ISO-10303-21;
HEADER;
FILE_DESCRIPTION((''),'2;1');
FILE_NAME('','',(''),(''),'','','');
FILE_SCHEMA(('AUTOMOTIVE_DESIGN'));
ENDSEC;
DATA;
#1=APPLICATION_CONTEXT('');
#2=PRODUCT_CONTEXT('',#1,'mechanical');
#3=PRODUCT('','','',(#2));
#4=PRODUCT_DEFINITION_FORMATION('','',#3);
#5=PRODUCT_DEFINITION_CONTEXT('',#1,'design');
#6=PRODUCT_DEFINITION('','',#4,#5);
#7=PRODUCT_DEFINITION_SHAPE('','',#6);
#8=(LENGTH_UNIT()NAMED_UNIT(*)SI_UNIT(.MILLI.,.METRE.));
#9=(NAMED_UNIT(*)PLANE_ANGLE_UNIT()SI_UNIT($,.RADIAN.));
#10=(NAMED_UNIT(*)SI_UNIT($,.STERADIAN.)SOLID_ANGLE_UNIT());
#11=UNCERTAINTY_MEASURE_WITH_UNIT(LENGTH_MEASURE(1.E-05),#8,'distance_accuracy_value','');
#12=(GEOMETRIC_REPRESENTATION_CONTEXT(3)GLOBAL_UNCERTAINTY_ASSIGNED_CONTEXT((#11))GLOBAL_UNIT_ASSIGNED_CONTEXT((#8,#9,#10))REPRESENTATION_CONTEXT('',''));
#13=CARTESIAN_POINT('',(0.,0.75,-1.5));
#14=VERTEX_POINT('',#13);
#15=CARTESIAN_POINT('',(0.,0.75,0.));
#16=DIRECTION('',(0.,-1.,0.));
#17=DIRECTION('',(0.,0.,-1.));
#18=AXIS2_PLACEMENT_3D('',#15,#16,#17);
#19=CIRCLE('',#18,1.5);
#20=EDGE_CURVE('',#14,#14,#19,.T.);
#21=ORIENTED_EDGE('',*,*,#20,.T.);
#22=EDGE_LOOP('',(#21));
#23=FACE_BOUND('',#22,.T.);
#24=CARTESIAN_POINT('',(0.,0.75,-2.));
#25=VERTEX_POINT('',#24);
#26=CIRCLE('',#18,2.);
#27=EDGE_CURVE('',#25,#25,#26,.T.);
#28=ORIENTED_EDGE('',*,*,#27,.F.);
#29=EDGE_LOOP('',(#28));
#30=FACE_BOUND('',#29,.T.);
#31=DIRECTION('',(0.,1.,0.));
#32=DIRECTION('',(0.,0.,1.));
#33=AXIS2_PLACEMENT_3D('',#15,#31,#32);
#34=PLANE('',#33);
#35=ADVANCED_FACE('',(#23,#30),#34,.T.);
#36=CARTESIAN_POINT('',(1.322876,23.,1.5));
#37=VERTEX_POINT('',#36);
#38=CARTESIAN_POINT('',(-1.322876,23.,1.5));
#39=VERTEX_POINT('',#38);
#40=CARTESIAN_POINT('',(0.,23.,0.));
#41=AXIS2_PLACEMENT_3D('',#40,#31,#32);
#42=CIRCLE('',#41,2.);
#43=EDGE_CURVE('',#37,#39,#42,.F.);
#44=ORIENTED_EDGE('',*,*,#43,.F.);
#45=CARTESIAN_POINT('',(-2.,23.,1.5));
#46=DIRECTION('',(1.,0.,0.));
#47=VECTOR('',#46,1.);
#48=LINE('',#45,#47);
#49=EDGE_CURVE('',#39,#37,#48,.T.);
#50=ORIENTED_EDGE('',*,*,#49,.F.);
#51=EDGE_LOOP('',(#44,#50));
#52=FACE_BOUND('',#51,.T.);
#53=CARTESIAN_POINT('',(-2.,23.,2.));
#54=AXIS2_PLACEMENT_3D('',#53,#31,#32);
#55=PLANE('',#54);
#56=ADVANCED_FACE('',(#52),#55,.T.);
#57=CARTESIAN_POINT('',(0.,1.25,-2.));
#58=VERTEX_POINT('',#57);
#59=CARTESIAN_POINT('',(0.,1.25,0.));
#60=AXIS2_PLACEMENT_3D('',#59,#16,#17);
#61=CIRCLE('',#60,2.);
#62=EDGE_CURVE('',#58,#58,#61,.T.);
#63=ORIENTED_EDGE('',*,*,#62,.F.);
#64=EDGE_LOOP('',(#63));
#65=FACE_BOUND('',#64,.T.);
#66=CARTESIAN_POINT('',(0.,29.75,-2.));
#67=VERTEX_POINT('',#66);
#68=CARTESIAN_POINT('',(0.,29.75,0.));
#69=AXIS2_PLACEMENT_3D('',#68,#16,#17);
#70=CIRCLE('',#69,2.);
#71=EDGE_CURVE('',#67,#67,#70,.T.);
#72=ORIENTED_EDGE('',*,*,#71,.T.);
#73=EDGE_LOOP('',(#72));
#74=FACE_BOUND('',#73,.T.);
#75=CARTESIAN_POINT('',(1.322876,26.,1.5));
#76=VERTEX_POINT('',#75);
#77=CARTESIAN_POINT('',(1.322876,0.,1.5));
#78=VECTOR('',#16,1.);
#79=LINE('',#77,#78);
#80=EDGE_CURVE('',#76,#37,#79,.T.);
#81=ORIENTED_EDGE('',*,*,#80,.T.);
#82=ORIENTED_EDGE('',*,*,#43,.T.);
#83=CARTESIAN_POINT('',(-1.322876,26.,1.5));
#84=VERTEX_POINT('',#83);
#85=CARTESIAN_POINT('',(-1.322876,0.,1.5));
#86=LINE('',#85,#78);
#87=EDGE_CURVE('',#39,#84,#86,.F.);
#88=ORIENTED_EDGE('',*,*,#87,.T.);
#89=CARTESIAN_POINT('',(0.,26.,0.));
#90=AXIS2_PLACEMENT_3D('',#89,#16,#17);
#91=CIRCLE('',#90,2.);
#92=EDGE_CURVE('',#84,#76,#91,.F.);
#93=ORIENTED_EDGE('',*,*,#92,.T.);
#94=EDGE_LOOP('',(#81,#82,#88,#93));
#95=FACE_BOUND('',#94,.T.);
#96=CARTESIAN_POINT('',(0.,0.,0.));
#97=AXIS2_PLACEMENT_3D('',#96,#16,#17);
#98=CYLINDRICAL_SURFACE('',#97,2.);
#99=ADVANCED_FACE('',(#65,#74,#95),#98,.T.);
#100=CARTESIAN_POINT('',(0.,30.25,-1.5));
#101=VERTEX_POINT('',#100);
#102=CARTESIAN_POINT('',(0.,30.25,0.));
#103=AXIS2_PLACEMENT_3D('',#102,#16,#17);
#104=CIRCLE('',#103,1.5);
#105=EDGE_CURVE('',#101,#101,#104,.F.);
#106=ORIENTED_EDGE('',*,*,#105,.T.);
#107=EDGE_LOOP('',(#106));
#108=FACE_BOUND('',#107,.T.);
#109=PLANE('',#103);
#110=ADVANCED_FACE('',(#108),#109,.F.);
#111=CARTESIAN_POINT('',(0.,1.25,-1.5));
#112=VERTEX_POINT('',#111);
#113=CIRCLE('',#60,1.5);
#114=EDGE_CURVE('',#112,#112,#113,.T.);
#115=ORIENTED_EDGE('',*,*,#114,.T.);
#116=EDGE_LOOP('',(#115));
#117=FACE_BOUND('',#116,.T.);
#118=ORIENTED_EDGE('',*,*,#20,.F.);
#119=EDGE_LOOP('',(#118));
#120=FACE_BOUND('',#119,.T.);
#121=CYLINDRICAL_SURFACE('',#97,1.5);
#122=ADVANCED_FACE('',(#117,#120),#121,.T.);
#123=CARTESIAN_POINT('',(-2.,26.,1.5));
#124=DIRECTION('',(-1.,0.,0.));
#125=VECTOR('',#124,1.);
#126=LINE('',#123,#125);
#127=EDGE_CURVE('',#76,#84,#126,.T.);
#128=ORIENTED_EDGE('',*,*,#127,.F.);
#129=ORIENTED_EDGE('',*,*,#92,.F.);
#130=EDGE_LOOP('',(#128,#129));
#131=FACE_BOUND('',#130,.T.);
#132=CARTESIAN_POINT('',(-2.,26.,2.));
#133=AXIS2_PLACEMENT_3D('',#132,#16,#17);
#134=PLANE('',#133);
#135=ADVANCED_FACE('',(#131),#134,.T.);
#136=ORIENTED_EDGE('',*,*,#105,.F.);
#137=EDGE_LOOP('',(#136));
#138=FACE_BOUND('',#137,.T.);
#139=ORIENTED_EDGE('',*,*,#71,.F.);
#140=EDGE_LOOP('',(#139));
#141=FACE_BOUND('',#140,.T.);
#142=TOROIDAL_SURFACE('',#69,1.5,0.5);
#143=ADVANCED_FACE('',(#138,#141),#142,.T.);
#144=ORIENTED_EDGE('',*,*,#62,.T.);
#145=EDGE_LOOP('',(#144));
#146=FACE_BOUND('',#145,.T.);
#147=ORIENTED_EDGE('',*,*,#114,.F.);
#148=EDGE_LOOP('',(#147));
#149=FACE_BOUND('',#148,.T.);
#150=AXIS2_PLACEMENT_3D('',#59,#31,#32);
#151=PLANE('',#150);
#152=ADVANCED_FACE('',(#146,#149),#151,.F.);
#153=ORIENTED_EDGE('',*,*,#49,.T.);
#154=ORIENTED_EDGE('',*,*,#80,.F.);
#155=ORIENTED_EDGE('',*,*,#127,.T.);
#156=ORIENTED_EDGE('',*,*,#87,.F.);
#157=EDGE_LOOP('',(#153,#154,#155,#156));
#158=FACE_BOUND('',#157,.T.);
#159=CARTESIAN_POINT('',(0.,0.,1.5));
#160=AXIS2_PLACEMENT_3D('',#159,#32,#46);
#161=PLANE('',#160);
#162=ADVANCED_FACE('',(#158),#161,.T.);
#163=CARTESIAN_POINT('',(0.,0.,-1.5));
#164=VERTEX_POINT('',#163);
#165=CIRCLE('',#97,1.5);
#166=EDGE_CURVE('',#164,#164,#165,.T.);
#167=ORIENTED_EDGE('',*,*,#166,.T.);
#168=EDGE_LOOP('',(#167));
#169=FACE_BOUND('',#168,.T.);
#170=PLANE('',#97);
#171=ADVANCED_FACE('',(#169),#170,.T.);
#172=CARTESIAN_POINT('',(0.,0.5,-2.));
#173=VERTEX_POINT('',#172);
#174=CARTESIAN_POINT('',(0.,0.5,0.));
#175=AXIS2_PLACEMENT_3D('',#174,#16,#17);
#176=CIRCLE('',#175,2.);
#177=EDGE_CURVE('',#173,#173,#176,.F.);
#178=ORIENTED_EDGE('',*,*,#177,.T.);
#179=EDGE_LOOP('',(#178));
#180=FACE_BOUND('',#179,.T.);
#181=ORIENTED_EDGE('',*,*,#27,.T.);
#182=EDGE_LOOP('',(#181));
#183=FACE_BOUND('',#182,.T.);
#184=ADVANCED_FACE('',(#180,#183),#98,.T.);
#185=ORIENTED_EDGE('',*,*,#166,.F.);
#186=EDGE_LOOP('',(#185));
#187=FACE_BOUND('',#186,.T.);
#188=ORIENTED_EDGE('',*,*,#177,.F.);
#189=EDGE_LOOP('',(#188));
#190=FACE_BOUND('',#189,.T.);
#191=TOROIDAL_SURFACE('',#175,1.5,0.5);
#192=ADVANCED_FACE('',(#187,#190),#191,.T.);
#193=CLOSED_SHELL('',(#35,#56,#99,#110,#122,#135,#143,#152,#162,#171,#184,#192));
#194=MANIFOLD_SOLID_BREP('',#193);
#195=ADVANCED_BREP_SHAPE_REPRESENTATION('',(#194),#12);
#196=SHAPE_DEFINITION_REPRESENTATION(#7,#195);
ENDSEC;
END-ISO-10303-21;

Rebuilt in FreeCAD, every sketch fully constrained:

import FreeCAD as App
import Part
import Sketcher

V = App.Vector


def edges_at(feature, points):
    """Names of the edges that pass closest to the given points."""
    edges = feature.Shape.Edges
    near = lambda p: min(range(len(edges)), key=lambda i: edges[i].distToShape(Part.Vertex(*p))[0])
    return sorted({f"Edge{near(p) + 1}" for p in points})

doc = App.newDocument("Part")
body = doc.addObject("PartDesign::Body", "Body")

# Sketch on XY plane
sketch1 = body.newObject("Sketcher::SketchObject", "Sketch")
sketch1.AttachmentSupport = (doc.getObject("XY_Plane"), [""])
sketch1.MapMode = "FlatFace"
sketch1.addGeometry(Part.LineSegment(V(-2, 0, 0), V(0, 0, 0)), False)
sketch1.addGeometry(Part.LineSegment(V(0, 0, 0), V(0, 30.2, 0)), False)
sketch1.addGeometry(Part.LineSegment(V(0, 30.2, 0), V(-2, 30.2, 0)), False)
sketch1.addGeometry(Part.LineSegment(V(-2, 30.2, 0), V(-2, 1.2, 0)), False)
sketch1.addGeometry(Part.LineSegment(V(-2, 1.2, 0), V(-1.5, 1.2, 0)), False)
sketch1.addGeometry(Part.LineSegment(V(-1.5, 1.2, 0), V(-1.5, 0.8, 0)), False)
sketch1.addGeometry(Part.LineSegment(V(-1.5, 0.8, 0), V(-2, 0.8, 0)), False)
sketch1.addGeometry(Part.LineSegment(V(-2, 0.8, 0), V(-2, 0, 0)), False)
sketch1.addConstraint(Sketcher.Constraint("Coincident", 0, 2, 1, 1))
sketch1.addConstraint(Sketcher.Constraint("Coincident", 1, 2, 2, 1))
sketch1.addConstraint(Sketcher.Constraint("Coincident", 2, 2, 3, 1))
sketch1.addConstraint(Sketcher.Constraint("Coincident", 3, 2, 4, 1))
sketch1.addConstraint(Sketcher.Constraint("Coincident", 4, 2, 5, 1))
sketch1.addConstraint(Sketcher.Constraint("Coincident", 5, 2, 6, 1))
sketch1.addConstraint(Sketcher.Constraint("Coincident", 6, 2, 7, 1))
sketch1.addConstraint(Sketcher.Constraint("Coincident", 7, 2, 0, 1))
sketch1.addConstraint(Sketcher.Constraint("Horizontal", 0))
sketch1.addConstraint(Sketcher.Constraint("Vertical", 1))
sketch1.addConstraint(Sketcher.Constraint("Horizontal", 2))
sketch1.addConstraint(Sketcher.Constraint("Vertical", 3))
sketch1.addConstraint(Sketcher.Constraint("Horizontal", 4))
sketch1.addConstraint(Sketcher.Constraint("Vertical", 5))
sketch1.addConstraint(Sketcher.Constraint("Horizontal", 6))
sketch1.addConstraint(Sketcher.Constraint("Vertical", 7))
sketch1.addConstraint(Sketcher.Constraint("Coincident", 0, 2, -1, 1))
sketch1.addConstraint(Sketcher.Constraint("Vertical", 3, 2, 6, 2))
sketch1.addConstraint(Sketcher.Constraint("Equal", 6, 5))
sketch1.addConstraint(Sketcher.Constraint("DistanceX", 0, 1, 0, 2, 2.0))
sketch1.addConstraint(Sketcher.Constraint("DistanceY", 3, 2, 3, 1, 29.0))
sketch1.addConstraint(Sketcher.Constraint("DistanceX", 4, 1, 4, 2, 0.5))
sketch1.addConstraint(Sketcher.Constraint("DistanceY", 1, 1, 1, 2, 30.25))
revolution = body.newObject("PartDesign::Revolution", "Revolution")
revolution.Profile = sketch1
revolution.ReferenceAxis = (sketch1, ["V_Axis"])
revolution.Angle = 360
doc.recompute()

fillet = body.newObject("PartDesign::Fillet", "Fillet")
fillet.Base = (revolution, edges_at(revolution, [(0, 30.25, 2), (0, 0, 2)]))
fillet.Radius = 0.5

# Sketch on XY plane
sketch2 = body.newObject("Sketcher::SketchObject", "Sketch001")
sketch2.AttachmentSupport = (doc.getObject("XY_Plane"), [""])
sketch2.MapMode = "FlatFace"
sketch2.AttachmentOffset = App.Placement(V(0, 0, 1.5), App.Rotation())
sketch2.addGeometry(Part.LineSegment(V(-2, 26, 0), V(-2, 23, 0)), False)
sketch2.addGeometry(Part.LineSegment(V(-2, 23, 0), V(2, 23, 0)), False)
sketch2.addGeometry(Part.LineSegment(V(2, 23, 0), V(2, 26, 0)), False)
sketch2.addGeometry(Part.LineSegment(V(2, 26, 0), V(-2, 26, 0)), False)
sketch2.addConstraint(Sketcher.Constraint("Coincident", 0, 2, 1, 1))
sketch2.addConstraint(Sketcher.Constraint("Coincident", 1, 2, 2, 1))
sketch2.addConstraint(Sketcher.Constraint("Coincident", 2, 2, 3, 1))
sketch2.addConstraint(Sketcher.Constraint("Coincident", 3, 2, 0, 1))
sketch2.addConstraint(Sketcher.Constraint("Vertical", 0))
sketch2.addConstraint(Sketcher.Constraint("Horizontal", 1))
sketch2.addConstraint(Sketcher.Constraint("Vertical", 2))
sketch2.addConstraint(Sketcher.Constraint("Horizontal", 3))
sketch2.addConstraint(Sketcher.Constraint("DistanceX", 1, 1, 1, 2, 4.0))
sketch2.addConstraint(Sketcher.Constraint("DistanceY", 0, 2, 0, 1, 3.0))
sketch2.addConstraint(Sketcher.Constraint("DistanceX", 0, 2, -1, 1, 2.0))
sketch2.addConstraint(Sketcher.Constraint("DistanceY", -1, 1, 0, 2, 23.0))
pocket1 = body.newObject("PartDesign::Pocket", "Pocket")
pocket1.Profile = sketch2
pocket1.Type = "ThroughAll"
pocket1.Reversed = True

doc.recompute()
